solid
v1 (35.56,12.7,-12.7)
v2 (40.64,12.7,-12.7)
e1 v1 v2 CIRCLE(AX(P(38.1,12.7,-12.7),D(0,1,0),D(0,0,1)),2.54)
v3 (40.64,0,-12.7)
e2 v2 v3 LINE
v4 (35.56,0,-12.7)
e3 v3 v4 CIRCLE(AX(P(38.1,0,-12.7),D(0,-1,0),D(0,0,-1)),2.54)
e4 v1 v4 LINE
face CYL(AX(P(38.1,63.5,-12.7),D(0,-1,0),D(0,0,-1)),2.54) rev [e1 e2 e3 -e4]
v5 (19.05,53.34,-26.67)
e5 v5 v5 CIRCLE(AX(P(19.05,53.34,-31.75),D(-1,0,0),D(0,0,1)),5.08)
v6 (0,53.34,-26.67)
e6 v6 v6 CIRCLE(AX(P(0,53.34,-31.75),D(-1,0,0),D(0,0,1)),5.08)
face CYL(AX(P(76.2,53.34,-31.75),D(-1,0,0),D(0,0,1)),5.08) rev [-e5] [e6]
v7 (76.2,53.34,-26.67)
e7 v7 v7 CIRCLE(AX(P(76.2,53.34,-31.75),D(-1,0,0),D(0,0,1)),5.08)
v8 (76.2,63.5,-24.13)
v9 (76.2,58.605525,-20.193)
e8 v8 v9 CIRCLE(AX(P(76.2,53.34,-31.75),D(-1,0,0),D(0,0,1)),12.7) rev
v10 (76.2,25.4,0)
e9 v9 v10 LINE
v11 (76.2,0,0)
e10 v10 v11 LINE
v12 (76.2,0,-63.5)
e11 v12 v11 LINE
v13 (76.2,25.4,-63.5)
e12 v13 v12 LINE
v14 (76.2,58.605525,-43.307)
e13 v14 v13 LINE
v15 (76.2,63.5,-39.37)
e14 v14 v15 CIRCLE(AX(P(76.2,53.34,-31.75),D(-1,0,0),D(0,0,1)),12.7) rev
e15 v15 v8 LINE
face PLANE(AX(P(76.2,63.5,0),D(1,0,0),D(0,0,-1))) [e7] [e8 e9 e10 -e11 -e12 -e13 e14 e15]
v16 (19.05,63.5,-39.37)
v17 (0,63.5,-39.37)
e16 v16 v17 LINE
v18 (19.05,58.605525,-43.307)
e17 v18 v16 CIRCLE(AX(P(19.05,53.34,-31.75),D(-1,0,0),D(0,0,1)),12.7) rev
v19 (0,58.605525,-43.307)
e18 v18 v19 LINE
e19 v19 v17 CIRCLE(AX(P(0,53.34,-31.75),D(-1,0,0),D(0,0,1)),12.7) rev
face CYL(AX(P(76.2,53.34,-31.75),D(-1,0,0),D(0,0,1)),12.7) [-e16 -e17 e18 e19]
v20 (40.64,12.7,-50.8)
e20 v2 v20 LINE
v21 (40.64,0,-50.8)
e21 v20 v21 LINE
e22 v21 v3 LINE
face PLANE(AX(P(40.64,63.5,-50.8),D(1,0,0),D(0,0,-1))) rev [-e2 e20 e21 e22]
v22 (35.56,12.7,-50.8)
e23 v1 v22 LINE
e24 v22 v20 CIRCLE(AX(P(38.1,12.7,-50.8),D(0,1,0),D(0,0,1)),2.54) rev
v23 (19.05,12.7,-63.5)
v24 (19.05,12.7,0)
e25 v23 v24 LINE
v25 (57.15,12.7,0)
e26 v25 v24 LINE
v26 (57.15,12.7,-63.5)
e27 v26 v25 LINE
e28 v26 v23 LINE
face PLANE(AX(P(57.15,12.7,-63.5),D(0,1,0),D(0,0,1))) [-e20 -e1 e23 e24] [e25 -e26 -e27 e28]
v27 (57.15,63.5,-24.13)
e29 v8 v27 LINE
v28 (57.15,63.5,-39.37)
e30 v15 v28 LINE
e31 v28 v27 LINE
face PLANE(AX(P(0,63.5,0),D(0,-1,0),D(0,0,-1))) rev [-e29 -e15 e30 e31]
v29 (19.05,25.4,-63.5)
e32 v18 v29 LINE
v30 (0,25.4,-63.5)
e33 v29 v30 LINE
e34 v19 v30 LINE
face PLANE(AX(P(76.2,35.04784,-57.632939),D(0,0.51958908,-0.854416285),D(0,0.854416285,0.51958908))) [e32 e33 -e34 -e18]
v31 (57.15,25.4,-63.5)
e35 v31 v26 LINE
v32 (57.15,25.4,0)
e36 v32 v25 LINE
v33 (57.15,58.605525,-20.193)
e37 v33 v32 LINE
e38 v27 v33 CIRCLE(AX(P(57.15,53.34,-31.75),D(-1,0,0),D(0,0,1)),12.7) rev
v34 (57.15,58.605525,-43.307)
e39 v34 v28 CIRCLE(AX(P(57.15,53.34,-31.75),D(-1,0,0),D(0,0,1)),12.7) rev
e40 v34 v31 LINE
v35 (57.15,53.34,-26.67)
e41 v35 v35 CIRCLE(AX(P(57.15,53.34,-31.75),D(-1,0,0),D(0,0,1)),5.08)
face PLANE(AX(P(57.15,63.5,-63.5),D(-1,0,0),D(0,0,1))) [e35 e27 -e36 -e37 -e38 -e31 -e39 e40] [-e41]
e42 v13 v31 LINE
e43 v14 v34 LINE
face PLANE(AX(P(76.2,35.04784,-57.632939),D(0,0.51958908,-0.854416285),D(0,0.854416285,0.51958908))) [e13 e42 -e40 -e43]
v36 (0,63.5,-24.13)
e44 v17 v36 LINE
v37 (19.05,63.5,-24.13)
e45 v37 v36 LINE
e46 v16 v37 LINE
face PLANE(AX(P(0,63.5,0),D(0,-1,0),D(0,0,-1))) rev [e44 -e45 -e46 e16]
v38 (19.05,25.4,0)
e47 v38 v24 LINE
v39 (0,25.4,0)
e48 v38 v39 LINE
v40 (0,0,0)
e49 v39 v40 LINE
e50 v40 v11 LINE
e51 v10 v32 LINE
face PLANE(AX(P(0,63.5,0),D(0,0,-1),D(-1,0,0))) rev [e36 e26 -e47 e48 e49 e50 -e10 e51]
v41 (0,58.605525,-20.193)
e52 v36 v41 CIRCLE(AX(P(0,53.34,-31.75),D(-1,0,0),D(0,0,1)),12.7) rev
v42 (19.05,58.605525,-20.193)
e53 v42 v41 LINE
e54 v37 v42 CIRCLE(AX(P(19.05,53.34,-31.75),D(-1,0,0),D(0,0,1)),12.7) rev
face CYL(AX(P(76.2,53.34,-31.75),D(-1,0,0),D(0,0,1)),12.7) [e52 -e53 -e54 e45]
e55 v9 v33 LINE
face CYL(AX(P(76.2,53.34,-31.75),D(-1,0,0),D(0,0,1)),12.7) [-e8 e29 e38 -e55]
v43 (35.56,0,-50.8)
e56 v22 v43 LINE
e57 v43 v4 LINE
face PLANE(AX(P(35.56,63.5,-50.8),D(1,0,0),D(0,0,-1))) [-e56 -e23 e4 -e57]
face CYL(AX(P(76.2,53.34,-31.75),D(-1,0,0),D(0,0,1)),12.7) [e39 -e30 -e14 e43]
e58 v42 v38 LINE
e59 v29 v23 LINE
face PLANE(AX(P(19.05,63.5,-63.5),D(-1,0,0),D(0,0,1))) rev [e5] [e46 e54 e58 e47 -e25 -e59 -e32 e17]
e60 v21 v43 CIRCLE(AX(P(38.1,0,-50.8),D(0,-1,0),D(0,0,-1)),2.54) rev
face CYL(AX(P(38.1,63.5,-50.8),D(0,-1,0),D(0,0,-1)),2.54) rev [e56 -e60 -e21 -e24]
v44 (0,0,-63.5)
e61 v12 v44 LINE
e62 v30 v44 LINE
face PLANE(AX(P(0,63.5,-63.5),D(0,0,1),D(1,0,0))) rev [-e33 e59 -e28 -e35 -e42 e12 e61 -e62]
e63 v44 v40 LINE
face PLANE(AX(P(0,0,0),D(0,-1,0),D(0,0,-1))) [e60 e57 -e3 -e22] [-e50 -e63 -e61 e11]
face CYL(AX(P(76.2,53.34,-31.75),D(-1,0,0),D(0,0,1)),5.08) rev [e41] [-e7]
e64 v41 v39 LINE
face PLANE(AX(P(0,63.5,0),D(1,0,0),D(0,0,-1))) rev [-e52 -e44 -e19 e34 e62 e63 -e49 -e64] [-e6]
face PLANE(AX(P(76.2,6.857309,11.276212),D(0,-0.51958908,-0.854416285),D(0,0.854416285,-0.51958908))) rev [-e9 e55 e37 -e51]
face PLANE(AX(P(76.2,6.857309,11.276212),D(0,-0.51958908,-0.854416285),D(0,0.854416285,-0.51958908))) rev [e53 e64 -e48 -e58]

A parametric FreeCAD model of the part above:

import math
import FreeCAD as App
import Part
import Sketcher
from FreeCAD import Vector
Q = App.Units.Quantity


def add_polygon(sketch, points):
    """Adds a closed chain of lines whose ends are joined by coincident constraints."""
    first, n = sketch.GeometryCount, len(points)
    for a, b in zip(points, points[1:] + points[:1]):
        sketch.addGeometry(Part.LineSegment(App.Vector(*a, 0), App.Vector(*b, 0)), False)
    for i in range(n):
        sketch.addConstraint(Sketcher.Constraint("Coincident", first + i, 2, first + (i + 1) % n, 1))

doc = App.newDocument("Part")
body = doc.addObject("PartDesign::Body", "Body")

# Sketch on XZ plane
sketch1 = body.newObject("Sketcher::SketchObject", "Sketch")
sketch1.AttachmentSupport = (doc.getObject("XZ_Plane"), [""])
sketch1.MapMode = "FlatFace"
add_polygon(sketch1, [(0, -64), (0, 0), (76, 0), (76, -64)])  # lines 0-3
sketch1.addConstraint([
    Sketcher.Constraint("Vertical", 0),
    Sketcher.Constraint("Horizontal", 1),
    Sketcher.Constraint("Vertical", 2),
    Sketcher.Constraint("Horizontal", 3),
    Sketcher.Constraint("Coincident", 0, 2, -1, 1),
    Sketcher.Constraint("DistanceX", 1, 1, 1, 2, Q("3 in")),
    Sketcher.Constraint("DistanceY", 0, 1, 0, 2, Q("2.5 in")),
])
pad1 = body.newObject("PartDesign::Pad", "Pad")
pad1.Profile = sketch1
pad1.Length = Q("2.5 in")
pad1.Reversed = True

# Sketch on XY plane
sketch2 = body.newObject("Sketcher::SketchObject", "Sketch001")
sketch2.AttachmentSupport = (doc.getObject("XY_Plane"), [""])
sketch2.MapMode = "FlatFace"
add_polygon(sketch2, [(19, 64), (19, 13), (57, 13), (57, 64)])  # lines 0-3
sketch2.addConstraint([
    Sketcher.Constraint("Vertical", 0),
    Sketcher.Constraint("Horizontal", 1),
    Sketcher.Constraint("Vertical", 2),
    Sketcher.Constraint("Horizontal", 3),
    Sketcher.Constraint("DistanceY", 0, 2, 0, 1, Q("2 in")),
    Sketcher.Constraint("DistanceX", 1, 1, 1, 2, Q("1.5 in")),
    Sketcher.Constraint("DistanceY", -1, 1, 0, 2, Q("0.5 in")),
    Sketcher.Constraint("DistanceX", -1, 1, 0, 2, Q("0.75 in")),
])
pocket1 = body.newObject("PartDesign::Pocket", "Pocket")
pocket1.Profile = sketch2
pocket1.Length = Q("2.5 in")

# Sketch on XZ plane
sketch3 = body.newObject("Sketcher::SketchObject", "Sketch002")
sketch3.AttachmentSupport = (doc.getObject("XZ_Plane"), [""])
sketch3.MapMode = "FlatFace"
add_polygon(sketch3, [(38, -222), (38, 158), (354, 158), (354, -222)])  # lines 0-3
sketch3.addConstraint([
    Sketcher.Constraint("Vertical", 0),
    Sketcher.Constraint("Horizontal", 1),
    Sketcher.Constraint("Vertical", 2),
    Sketcher.Constraint("Horizontal", 3),
    Sketcher.Constraint("DistanceX", -1, 1, 0, 2, Q("1.5 in")),
    Sketcher.Constraint("DistanceX", 1, 1, 1, 2, 316.212356),
    Sketcher.Constraint("DistanceY", 0, 1, 0, 2, 379.712356),
    Sketcher.Constraint("DistanceY", -1, 1, 0, 2, 158.106178),
])
pocket2 = body.newObject("PartDesign::Pocket", "Pocket001")
pocket2.Profile = sketch3
pocket2.Type = "ThroughAll"
pocket2.Midplane = True
doc.recompute()

datumplane = body.newObject("PartDesign::Plane", "DatumPlane")
datumplane.AttachmentSupport = (doc.getObject("YZ_Plane"), [""])
datumplane.MapMode = "FlatFace"
datumplane.AttachmentOffset = App.Placement(Vector(0, 0, 1.5 * 25.4), App.Rotation())
mirrored = body.newObject("PartDesign::Mirrored", "Mirrored")
mirrored.Originals = [pad1, pocket1]
mirrored.MirrorPlane = (datumplane, [""])
body.Tip = mirrored

# Sketch on YZ plane
sketch4 = body.newObject("Sketcher::SketchObject", "Sketch003")
sketch4.AttachmentSupport = (doc.getObject("YZ_Plane"), [""])
sketch4.MapMode = "FlatFace"
sketch4.addGeometry(Part.Circle(Vector(53, -32, 0), Vector(0, 0, 1), 5), False)
sketch4.addConstraint([
    Sketcher.Constraint("Diameter", 0, Q("0.4 in")),
    Sketcher.Constraint("DistanceX", -1, 1, 0, 3, Q("2.1 in")),
    Sketcher.Constraint("DistanceY", 0, 3, -1, 1, Q("1.25 in")),
])
pocket3 = body.newObject("PartDesign::Pocket", "Pocket002")
pocket3.Profile = sketch4
pocket3.Type = "ThroughAll"
pocket3.Reversed = True

# Sketch on YZ plane
sketch5 = body.newObject("Sketcher::SketchObject", "Sketch004")
sketch5.AttachmentSupport = (doc.getObject("YZ_Plane"), [""])
sketch5.MapMode = "FlatFace"
sketch5.addGeometry([
    Part.LineSegment(Vector(64, -64, 0), Vector(25, -64, 0)),  # 0
    Part.LineSegment(Vector(25, -64, 0), Vector(59, -43, 0)),  # 1
    Part.ArcOfCircle(Part.Circle(Vector(53, -32, 0), Vector(0, 0, 1), 13), math.radians(-66), math.radians(-37)),  # 2
    Part.LineSegment(Vector(64, -39, 0), Vector(64, -64, 0)),  # 3
    Part.ArcOfCircle(Part.Circle(Vector(53, -32, 0), Vector(0, 0, 1), 13), math.radians(37), math.radians(66)),  # 4
    Part.LineSegment(Vector(59, -20, 0), Vector(25, 0, 0)),  # 5
    Part.LineSegment(Vector(25, 0, 0), Vector(64, 0, 0)),  # 6
    Part.LineSegment(Vector(64, 0, 0), Vector(64, -24, 0)),  # 7
], False)
sketch5.addConstraint([
    Sketcher.Constraint("Coincident", 0, 2, 1, 1),
    Sketcher.Constraint("Coincident", 1, 2, 2, 1),
    Sketcher.Constraint("Coincident", 2, 2, 3, 1),
    Sketcher.Constraint("Coincident", 3, 2, 0, 1),
    Sketcher.Constraint("Coincident", 4, 2, 5, 1),
    Sketcher.Constraint("Coincident", 5, 2, 6, 1),
    Sketcher.Constraint("Coincident", 6, 2, 7, 1),
    Sketcher.Constraint("Coincident", 7, 2, 4, 1),
    Sketcher.Constraint("Horizontal", 0),
    Sketcher.Constraint("Vertical", 3),
    Sketcher.Constraint("Horizontal", 6),
    Sketcher.Constraint("Vertical", 7),
    Sketcher.Constraint("Coincident", 4, 3, 2, 3),
    Sketcher.Constraint("Equal", 2, 4),
    Sketcher.Constraint("PointOnObject", 5, 2, -1),
    Sketcher.Constraint("Vertical", 1, 2, 4, 2),
    Sketcher.Constraint("Vertical", 0, 2, 5, 2),
    Sketcher.Constraint("Vertical", 3, 2, 6, 2),
    Sketcher.Constraint("Equal", 3, 7),
    Sketcher.Constraint("Radius", 2, Q("0.5 in")),
    Sketcher.Constraint("DistanceX", 0, 2, 0, 1, Q("1.5 in")),
    Sketcher.Constraint("DistanceX", -1, 1, 0, 2, Q("1 in")),
    Sketcher.Constraint("DistanceY", 3, 2, 3, 1, Q("0.95 in")),
    Sketcher.Constraint("DistanceX", -1, 1, 2, 3, Q("2.1 in")),
    Sketcher.Constraint("DistanceY", 1, 2, 4, 2, Q("0.91 in")),
])
pocket4 = body.newObject("PartDesign::Pocket", "Pocket003")
pocket4.Profile = sketch5
pocket4.Type = "ThroughAll"
pocket4.Reversed = True

# Sketch on XZ plane
sketch6 = body.newObject("Sketcher::SketchObject", "Sketch005")
sketch6.AttachmentSupport = (doc.getObject("XZ_Plane"), [""])
sketch6.MapMode = "FlatFace"
sketch6.addGeometry([
    Part.LineSegment(Vector(40.6, -12.7, 0), Vector(40.6, -50.8, 0)),
    Part.ArcOfCircle(Part.Circle(Vector(38.1, -50.8, 0), Vector(0, 0, 1), 2.5), math.radians(180), math.radians(360)),
    Part.LineSegment(Vector(35.6, -50.8, 0), Vector(35.6, -12.7, 0)),
    Part.ArcOfCircle(Part.Circle(Vector(38.1, -12.7, 0), Vector(0, 0, 1), 2.5), math.radians(0), math.radians(180)),
], False)
sketch6.addConstraint([
    Sketcher.Constraint("Tangent", 0, 2, 1, 2),
    Sketcher.Constraint("Tangent", 1, 1, 2, 1),
    Sketcher.Constraint("Tangent", 2, 2, 3, 2),
    Sketcher.Constraint("Tangent", 3, 1, 0, 1),
    Sketcher.Constraint("Vertical", 0),
    Sketcher.Constraint("Vertical", 2),
    Sketcher.Constraint("Radius", 1, Q("0.1 in")),
    Sketcher.Constraint("DistanceY", 0, 2, 0, 1, Q("1.5 in")),
    Sketcher.Constraint("DistanceY", 1, 3, -1, 1, Q("2 in")),
    Sketcher.Constraint("DistanceX", -1, 1, 1, 3, Q("1.5 in")),
])
pocket5 = body.newObject("PartDesign::Pocket", "Pocket004")
pocket5.Profile = sketch6
pocket5.Type = "ThroughAll"
pocket5.Midplane = True

doc.recompute()
